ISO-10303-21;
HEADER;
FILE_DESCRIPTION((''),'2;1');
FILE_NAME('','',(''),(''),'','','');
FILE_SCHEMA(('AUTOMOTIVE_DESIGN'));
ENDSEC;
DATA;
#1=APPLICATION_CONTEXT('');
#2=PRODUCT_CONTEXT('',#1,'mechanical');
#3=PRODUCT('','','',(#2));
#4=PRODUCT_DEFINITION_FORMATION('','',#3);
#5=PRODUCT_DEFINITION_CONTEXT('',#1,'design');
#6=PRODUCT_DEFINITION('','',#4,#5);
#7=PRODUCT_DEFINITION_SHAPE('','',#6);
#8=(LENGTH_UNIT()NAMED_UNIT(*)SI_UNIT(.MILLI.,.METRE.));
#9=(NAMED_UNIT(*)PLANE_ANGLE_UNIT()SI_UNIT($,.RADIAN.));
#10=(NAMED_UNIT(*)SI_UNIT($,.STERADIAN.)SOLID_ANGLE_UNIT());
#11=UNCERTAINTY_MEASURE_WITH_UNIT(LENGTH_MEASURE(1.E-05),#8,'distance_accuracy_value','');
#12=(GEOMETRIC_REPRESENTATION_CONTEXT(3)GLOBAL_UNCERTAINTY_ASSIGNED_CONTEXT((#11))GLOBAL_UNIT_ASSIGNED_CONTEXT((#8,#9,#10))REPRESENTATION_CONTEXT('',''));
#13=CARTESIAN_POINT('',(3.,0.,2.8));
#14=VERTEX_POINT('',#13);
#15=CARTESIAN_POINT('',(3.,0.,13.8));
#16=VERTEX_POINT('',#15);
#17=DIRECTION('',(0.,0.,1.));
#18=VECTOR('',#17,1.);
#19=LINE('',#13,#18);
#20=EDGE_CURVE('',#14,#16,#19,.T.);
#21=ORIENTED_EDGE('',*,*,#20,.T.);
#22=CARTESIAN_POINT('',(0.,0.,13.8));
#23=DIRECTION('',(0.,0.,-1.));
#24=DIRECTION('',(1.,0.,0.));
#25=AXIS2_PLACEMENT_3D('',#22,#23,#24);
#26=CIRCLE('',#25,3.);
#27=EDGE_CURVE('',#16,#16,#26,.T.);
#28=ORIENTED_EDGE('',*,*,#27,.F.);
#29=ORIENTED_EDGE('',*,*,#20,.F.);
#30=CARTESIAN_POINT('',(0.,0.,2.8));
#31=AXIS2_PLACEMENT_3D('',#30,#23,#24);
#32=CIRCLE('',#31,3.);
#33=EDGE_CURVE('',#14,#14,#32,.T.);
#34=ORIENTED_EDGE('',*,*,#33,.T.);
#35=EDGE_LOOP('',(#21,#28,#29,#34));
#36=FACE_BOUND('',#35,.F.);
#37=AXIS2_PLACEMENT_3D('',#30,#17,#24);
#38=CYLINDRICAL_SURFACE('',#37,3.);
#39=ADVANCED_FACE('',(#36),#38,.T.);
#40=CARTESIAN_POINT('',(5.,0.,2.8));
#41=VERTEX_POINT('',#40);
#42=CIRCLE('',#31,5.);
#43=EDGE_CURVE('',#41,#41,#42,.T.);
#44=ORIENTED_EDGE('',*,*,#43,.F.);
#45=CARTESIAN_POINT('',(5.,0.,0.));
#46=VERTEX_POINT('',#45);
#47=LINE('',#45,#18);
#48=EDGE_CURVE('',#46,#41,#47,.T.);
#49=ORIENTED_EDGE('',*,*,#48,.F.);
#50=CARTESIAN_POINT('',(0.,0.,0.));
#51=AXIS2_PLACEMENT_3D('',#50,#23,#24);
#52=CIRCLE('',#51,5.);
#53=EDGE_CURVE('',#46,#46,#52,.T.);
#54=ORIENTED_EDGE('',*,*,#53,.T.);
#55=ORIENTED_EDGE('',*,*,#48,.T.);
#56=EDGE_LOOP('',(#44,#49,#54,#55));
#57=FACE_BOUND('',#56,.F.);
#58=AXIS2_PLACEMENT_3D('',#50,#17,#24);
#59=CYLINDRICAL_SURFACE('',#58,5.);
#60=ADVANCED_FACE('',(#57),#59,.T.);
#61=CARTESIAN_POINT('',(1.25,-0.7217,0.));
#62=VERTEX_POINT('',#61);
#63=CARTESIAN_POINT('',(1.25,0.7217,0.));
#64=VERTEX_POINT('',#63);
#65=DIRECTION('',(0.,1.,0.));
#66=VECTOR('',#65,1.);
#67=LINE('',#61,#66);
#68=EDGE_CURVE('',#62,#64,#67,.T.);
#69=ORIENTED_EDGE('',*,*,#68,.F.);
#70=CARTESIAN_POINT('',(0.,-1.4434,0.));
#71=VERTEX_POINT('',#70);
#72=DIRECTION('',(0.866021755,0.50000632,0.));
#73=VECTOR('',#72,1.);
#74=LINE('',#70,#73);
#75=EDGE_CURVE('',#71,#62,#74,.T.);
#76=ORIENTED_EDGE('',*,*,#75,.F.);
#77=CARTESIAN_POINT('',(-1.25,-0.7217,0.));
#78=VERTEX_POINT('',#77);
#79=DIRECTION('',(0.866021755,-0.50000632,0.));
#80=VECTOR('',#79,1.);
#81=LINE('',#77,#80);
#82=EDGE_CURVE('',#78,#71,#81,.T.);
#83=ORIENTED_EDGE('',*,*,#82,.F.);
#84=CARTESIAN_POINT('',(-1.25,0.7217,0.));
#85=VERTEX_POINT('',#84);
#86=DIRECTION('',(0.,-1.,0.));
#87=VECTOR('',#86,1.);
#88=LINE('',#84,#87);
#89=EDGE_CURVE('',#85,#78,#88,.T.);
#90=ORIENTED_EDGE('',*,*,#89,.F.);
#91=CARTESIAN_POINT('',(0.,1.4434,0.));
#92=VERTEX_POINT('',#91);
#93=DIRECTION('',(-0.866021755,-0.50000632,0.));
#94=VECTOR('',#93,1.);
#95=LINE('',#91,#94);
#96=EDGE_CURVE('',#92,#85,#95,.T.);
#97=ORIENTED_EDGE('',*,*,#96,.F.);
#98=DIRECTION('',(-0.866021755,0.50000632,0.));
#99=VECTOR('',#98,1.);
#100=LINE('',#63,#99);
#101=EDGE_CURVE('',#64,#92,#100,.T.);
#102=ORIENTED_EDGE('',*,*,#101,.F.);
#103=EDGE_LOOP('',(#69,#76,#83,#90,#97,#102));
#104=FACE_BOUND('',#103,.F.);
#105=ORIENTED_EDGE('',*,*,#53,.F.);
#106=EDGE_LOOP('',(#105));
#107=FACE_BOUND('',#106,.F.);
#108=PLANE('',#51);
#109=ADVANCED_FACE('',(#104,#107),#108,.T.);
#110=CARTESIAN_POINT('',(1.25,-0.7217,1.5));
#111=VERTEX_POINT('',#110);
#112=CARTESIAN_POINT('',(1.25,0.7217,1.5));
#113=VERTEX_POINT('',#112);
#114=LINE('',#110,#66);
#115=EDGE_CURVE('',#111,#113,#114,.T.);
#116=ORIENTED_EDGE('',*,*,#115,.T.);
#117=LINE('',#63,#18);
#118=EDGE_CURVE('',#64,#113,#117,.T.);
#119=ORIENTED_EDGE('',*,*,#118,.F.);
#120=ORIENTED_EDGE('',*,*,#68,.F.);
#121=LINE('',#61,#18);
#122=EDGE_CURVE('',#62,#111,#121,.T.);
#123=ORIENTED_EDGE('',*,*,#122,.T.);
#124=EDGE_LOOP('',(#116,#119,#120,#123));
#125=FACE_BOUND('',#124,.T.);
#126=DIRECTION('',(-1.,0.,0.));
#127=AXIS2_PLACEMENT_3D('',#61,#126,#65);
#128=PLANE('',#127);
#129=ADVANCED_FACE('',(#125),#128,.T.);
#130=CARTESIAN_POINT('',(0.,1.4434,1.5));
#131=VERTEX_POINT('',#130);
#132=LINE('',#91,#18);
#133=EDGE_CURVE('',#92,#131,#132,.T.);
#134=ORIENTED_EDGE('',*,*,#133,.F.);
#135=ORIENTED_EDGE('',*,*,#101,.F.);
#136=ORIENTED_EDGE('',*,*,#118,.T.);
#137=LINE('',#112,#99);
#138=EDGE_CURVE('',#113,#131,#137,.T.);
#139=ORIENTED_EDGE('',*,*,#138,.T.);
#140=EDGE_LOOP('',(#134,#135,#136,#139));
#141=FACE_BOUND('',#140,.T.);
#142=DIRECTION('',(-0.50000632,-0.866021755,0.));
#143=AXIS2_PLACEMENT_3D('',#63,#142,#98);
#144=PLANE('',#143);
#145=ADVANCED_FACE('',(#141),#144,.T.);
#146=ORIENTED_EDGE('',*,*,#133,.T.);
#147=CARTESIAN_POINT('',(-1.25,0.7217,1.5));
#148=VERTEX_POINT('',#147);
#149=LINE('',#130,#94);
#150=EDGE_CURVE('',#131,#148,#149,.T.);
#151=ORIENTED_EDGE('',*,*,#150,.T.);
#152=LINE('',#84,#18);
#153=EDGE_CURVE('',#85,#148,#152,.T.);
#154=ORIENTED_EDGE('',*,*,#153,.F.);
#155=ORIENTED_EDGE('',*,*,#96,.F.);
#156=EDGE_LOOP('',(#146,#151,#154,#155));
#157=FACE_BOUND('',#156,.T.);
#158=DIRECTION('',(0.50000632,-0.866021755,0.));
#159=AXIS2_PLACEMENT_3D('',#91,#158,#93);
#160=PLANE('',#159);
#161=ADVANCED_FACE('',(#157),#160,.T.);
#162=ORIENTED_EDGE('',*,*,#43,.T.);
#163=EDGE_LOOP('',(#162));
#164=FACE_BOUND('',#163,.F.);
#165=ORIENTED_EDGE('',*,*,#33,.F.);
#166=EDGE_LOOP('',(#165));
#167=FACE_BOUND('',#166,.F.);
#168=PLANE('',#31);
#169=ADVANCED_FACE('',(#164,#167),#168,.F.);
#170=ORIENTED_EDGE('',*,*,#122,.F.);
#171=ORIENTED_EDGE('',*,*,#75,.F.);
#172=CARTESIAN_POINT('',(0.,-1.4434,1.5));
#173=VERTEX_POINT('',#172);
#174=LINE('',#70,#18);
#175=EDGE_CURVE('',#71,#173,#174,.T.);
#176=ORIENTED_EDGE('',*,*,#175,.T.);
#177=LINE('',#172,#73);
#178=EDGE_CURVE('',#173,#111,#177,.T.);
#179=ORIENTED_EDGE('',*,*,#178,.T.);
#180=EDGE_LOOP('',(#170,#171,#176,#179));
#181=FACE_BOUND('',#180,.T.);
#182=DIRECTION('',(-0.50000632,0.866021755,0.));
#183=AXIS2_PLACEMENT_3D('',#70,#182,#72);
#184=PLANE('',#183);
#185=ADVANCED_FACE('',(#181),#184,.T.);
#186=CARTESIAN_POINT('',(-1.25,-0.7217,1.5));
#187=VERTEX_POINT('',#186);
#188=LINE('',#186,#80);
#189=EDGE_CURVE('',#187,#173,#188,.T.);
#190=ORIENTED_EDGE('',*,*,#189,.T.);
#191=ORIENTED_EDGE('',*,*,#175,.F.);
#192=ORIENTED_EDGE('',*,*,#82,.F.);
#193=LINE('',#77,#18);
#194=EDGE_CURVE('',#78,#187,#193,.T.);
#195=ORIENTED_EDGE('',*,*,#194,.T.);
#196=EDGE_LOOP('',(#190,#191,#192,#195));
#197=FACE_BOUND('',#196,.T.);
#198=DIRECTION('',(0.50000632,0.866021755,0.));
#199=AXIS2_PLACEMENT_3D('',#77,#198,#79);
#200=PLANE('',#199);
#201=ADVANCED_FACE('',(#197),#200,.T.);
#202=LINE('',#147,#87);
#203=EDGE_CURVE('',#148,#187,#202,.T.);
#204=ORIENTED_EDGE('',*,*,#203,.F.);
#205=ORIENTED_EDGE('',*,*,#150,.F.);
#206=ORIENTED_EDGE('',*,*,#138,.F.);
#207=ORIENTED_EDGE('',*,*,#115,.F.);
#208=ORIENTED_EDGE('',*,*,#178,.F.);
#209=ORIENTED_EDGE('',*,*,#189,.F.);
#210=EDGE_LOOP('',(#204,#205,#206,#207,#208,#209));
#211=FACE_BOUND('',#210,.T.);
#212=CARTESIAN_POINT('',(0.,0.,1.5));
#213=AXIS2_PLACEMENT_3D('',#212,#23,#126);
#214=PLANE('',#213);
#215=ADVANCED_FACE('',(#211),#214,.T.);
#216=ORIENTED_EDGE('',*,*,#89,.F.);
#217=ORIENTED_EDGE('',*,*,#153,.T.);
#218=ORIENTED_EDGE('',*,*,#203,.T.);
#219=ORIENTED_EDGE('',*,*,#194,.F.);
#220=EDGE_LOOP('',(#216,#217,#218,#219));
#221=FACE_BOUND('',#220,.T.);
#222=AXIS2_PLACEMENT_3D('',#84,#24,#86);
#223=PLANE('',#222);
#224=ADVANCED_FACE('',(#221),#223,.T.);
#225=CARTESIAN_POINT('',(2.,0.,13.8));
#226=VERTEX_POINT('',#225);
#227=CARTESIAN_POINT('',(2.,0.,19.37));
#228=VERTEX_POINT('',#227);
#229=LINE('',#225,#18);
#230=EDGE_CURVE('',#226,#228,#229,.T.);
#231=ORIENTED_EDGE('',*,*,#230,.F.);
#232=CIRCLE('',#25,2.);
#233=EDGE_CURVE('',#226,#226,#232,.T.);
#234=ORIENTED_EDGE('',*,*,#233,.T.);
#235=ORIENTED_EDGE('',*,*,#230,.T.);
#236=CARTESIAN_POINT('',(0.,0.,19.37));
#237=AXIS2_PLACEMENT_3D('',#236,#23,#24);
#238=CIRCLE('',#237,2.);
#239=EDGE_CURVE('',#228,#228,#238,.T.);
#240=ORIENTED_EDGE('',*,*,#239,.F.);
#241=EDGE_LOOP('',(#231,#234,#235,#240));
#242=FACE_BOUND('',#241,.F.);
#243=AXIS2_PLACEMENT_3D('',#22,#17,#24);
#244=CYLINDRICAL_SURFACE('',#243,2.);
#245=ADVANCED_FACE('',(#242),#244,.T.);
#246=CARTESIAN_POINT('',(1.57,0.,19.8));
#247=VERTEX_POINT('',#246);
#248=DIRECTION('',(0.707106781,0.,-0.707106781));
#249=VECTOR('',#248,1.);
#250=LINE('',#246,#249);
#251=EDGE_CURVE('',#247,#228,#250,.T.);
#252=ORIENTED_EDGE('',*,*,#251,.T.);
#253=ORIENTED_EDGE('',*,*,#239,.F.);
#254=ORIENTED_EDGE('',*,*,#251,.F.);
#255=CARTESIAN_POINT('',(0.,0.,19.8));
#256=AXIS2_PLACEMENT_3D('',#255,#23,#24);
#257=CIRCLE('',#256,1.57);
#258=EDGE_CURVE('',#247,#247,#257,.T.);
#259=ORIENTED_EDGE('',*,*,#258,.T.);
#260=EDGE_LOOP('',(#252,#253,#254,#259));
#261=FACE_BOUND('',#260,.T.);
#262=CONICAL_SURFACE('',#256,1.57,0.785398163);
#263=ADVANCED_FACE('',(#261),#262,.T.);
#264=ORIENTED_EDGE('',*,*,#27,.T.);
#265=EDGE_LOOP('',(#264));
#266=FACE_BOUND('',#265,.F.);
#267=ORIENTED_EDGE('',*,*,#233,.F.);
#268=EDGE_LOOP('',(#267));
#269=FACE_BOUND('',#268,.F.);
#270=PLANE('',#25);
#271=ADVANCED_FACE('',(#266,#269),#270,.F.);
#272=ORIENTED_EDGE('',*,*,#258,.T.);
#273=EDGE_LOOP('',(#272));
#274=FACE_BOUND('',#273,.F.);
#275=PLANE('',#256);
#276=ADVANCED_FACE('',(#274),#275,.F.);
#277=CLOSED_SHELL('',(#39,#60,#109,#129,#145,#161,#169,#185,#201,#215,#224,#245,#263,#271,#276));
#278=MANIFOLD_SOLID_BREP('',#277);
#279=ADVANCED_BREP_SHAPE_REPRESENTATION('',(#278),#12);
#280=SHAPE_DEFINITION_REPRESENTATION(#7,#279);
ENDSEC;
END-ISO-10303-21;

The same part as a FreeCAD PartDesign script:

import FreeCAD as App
import Part
import Sketcher
Q = App.Units.Quantity


def add_polygon(sketch, points):
    """Adds a closed chain of lines whose ends are joined by coincident constraints."""
    first, n = sketch.GeometryCount, len(points)
    for a, b in zip(points, points[1:] + points[:1]):
        sketch.addGeometry(Part.LineSegment(App.Vector(*a, 0), App.Vector(*b, 0)), False)
    for i in range(n):
        sketch.addConstraint(Sketcher.Constraint("Coincident", first + i, 2, first + (i + 1) % n, 1))

doc = App.newDocument("Part")
body = doc.addObject("PartDesign::Body", "Body")

# Sketch on XZ plane
sketch1 = body.newObject("Sketcher::SketchObject", "Sketch")
sketch1.AttachmentSupport = (doc.getObject("XZ_Plane"), [""])
sketch1.MapMode = "FlatFace"
add_polygon(sketch1, [(5, 0), (0, 0), (0, 19.8), (1.6, 19.8), (2, 19.4), (2, 13.8), (3, 13.8), (3, 2.8), (5, 2.8)])  # lines 0-8
sketch1.addConstraint([
    Sketcher.Constraint("Horizontal", 0),
    Sketcher.Constraint("Vertical", 1),
    Sketcher.Constraint("Horizontal", 2),
    Sketcher.Constraint("Vertical", 4),
    Sketcher.Constraint("Horizontal", 5),
    Sketcher.Constraint("Vertical", 6),
    Sketcher.Constraint("Horizontal", 7),
    Sketcher.Constraint("Vertical", 8),
    Sketcher.Constraint("Coincident", 0, 2, -1, 1),
    Sketcher.Constraint("DistanceY", 6, 2, 6, 1, 11.0),
    Sketcher.Constraint("DistanceY", 8, 2, 8, 1, 2.8),
    Sketcher.Constraint("DistanceY", 4, 2, 2, 2, 6.0),
    Sketcher.Constraint("DistanceX", 0, 2, 0, 1, 5.0),
    Sketcher.Constraint("DistanceX", 5, 1, 5, 2, 1.0),
    Sketcher.Constraint("DistanceX", 7, 1, 7, 2, 2.0),
    Sketcher.Constraint("Angle", 3, Q("-45 deg")),
    Sketcher.Constraint("DistanceX", 2, 2, 3, 2, 0.43),
])
revolution = body.newObject("PartDesign::Revolution", "Revolution")
revolution.Profile = sketch1
revolution.ReferenceAxis = (sketch1, ["V_Axis"])
revolution.Angle = 360

# Sketch on XY plane
sketch2 = body.newObject("Sketcher::SketchObject", "Sketch001")
sketch2.AttachmentSupport = (doc.getObject("XY_Plane"), [""])
sketch2.MapMode = "FlatFace"
add_polygon(sketch2, [(1.2, -0.7), (0, -1.4), (-1.2, -0.7), (-1.2, 0.7), (0, 1.4), (1.2, 0.7)])  # lines 0-5
sketch2.addConstraint([
    Sketcher.Constraint("Vertical", 2),
    Sketcher.Constraint("Vertical", 5),
    Sketcher.Constraint("Symmetric", 0, 2, 3, 2, -1, 1),
    Sketcher.Constraint("Symmetric", 1, 2, 4, 2, -1, 1),
    Sketcher.Constraint("PointOnObject", 0, 2, -2),
    Sketcher.Constraint("Parallel", 0, 3),
    Sketcher.Constraint("Horizontal", 2, 2, 4, 2),
    Sketcher.Constraint("DistanceX", 2, 2, 4, 2, 2.5),
    Sketcher.Constraint("Angle", 0, Q("-149.9996 deg")),
    Sketcher.Constraint("DistanceY", 2, 1, 2, 2, 1.4434),
])
pocket1 = body.newObject("PartDesign::Pocket", "Pocket")
pocket1.Profile = sketch2
pocket1.Length = 1.5
pocket1.Reversed = True

doc.recompute()
